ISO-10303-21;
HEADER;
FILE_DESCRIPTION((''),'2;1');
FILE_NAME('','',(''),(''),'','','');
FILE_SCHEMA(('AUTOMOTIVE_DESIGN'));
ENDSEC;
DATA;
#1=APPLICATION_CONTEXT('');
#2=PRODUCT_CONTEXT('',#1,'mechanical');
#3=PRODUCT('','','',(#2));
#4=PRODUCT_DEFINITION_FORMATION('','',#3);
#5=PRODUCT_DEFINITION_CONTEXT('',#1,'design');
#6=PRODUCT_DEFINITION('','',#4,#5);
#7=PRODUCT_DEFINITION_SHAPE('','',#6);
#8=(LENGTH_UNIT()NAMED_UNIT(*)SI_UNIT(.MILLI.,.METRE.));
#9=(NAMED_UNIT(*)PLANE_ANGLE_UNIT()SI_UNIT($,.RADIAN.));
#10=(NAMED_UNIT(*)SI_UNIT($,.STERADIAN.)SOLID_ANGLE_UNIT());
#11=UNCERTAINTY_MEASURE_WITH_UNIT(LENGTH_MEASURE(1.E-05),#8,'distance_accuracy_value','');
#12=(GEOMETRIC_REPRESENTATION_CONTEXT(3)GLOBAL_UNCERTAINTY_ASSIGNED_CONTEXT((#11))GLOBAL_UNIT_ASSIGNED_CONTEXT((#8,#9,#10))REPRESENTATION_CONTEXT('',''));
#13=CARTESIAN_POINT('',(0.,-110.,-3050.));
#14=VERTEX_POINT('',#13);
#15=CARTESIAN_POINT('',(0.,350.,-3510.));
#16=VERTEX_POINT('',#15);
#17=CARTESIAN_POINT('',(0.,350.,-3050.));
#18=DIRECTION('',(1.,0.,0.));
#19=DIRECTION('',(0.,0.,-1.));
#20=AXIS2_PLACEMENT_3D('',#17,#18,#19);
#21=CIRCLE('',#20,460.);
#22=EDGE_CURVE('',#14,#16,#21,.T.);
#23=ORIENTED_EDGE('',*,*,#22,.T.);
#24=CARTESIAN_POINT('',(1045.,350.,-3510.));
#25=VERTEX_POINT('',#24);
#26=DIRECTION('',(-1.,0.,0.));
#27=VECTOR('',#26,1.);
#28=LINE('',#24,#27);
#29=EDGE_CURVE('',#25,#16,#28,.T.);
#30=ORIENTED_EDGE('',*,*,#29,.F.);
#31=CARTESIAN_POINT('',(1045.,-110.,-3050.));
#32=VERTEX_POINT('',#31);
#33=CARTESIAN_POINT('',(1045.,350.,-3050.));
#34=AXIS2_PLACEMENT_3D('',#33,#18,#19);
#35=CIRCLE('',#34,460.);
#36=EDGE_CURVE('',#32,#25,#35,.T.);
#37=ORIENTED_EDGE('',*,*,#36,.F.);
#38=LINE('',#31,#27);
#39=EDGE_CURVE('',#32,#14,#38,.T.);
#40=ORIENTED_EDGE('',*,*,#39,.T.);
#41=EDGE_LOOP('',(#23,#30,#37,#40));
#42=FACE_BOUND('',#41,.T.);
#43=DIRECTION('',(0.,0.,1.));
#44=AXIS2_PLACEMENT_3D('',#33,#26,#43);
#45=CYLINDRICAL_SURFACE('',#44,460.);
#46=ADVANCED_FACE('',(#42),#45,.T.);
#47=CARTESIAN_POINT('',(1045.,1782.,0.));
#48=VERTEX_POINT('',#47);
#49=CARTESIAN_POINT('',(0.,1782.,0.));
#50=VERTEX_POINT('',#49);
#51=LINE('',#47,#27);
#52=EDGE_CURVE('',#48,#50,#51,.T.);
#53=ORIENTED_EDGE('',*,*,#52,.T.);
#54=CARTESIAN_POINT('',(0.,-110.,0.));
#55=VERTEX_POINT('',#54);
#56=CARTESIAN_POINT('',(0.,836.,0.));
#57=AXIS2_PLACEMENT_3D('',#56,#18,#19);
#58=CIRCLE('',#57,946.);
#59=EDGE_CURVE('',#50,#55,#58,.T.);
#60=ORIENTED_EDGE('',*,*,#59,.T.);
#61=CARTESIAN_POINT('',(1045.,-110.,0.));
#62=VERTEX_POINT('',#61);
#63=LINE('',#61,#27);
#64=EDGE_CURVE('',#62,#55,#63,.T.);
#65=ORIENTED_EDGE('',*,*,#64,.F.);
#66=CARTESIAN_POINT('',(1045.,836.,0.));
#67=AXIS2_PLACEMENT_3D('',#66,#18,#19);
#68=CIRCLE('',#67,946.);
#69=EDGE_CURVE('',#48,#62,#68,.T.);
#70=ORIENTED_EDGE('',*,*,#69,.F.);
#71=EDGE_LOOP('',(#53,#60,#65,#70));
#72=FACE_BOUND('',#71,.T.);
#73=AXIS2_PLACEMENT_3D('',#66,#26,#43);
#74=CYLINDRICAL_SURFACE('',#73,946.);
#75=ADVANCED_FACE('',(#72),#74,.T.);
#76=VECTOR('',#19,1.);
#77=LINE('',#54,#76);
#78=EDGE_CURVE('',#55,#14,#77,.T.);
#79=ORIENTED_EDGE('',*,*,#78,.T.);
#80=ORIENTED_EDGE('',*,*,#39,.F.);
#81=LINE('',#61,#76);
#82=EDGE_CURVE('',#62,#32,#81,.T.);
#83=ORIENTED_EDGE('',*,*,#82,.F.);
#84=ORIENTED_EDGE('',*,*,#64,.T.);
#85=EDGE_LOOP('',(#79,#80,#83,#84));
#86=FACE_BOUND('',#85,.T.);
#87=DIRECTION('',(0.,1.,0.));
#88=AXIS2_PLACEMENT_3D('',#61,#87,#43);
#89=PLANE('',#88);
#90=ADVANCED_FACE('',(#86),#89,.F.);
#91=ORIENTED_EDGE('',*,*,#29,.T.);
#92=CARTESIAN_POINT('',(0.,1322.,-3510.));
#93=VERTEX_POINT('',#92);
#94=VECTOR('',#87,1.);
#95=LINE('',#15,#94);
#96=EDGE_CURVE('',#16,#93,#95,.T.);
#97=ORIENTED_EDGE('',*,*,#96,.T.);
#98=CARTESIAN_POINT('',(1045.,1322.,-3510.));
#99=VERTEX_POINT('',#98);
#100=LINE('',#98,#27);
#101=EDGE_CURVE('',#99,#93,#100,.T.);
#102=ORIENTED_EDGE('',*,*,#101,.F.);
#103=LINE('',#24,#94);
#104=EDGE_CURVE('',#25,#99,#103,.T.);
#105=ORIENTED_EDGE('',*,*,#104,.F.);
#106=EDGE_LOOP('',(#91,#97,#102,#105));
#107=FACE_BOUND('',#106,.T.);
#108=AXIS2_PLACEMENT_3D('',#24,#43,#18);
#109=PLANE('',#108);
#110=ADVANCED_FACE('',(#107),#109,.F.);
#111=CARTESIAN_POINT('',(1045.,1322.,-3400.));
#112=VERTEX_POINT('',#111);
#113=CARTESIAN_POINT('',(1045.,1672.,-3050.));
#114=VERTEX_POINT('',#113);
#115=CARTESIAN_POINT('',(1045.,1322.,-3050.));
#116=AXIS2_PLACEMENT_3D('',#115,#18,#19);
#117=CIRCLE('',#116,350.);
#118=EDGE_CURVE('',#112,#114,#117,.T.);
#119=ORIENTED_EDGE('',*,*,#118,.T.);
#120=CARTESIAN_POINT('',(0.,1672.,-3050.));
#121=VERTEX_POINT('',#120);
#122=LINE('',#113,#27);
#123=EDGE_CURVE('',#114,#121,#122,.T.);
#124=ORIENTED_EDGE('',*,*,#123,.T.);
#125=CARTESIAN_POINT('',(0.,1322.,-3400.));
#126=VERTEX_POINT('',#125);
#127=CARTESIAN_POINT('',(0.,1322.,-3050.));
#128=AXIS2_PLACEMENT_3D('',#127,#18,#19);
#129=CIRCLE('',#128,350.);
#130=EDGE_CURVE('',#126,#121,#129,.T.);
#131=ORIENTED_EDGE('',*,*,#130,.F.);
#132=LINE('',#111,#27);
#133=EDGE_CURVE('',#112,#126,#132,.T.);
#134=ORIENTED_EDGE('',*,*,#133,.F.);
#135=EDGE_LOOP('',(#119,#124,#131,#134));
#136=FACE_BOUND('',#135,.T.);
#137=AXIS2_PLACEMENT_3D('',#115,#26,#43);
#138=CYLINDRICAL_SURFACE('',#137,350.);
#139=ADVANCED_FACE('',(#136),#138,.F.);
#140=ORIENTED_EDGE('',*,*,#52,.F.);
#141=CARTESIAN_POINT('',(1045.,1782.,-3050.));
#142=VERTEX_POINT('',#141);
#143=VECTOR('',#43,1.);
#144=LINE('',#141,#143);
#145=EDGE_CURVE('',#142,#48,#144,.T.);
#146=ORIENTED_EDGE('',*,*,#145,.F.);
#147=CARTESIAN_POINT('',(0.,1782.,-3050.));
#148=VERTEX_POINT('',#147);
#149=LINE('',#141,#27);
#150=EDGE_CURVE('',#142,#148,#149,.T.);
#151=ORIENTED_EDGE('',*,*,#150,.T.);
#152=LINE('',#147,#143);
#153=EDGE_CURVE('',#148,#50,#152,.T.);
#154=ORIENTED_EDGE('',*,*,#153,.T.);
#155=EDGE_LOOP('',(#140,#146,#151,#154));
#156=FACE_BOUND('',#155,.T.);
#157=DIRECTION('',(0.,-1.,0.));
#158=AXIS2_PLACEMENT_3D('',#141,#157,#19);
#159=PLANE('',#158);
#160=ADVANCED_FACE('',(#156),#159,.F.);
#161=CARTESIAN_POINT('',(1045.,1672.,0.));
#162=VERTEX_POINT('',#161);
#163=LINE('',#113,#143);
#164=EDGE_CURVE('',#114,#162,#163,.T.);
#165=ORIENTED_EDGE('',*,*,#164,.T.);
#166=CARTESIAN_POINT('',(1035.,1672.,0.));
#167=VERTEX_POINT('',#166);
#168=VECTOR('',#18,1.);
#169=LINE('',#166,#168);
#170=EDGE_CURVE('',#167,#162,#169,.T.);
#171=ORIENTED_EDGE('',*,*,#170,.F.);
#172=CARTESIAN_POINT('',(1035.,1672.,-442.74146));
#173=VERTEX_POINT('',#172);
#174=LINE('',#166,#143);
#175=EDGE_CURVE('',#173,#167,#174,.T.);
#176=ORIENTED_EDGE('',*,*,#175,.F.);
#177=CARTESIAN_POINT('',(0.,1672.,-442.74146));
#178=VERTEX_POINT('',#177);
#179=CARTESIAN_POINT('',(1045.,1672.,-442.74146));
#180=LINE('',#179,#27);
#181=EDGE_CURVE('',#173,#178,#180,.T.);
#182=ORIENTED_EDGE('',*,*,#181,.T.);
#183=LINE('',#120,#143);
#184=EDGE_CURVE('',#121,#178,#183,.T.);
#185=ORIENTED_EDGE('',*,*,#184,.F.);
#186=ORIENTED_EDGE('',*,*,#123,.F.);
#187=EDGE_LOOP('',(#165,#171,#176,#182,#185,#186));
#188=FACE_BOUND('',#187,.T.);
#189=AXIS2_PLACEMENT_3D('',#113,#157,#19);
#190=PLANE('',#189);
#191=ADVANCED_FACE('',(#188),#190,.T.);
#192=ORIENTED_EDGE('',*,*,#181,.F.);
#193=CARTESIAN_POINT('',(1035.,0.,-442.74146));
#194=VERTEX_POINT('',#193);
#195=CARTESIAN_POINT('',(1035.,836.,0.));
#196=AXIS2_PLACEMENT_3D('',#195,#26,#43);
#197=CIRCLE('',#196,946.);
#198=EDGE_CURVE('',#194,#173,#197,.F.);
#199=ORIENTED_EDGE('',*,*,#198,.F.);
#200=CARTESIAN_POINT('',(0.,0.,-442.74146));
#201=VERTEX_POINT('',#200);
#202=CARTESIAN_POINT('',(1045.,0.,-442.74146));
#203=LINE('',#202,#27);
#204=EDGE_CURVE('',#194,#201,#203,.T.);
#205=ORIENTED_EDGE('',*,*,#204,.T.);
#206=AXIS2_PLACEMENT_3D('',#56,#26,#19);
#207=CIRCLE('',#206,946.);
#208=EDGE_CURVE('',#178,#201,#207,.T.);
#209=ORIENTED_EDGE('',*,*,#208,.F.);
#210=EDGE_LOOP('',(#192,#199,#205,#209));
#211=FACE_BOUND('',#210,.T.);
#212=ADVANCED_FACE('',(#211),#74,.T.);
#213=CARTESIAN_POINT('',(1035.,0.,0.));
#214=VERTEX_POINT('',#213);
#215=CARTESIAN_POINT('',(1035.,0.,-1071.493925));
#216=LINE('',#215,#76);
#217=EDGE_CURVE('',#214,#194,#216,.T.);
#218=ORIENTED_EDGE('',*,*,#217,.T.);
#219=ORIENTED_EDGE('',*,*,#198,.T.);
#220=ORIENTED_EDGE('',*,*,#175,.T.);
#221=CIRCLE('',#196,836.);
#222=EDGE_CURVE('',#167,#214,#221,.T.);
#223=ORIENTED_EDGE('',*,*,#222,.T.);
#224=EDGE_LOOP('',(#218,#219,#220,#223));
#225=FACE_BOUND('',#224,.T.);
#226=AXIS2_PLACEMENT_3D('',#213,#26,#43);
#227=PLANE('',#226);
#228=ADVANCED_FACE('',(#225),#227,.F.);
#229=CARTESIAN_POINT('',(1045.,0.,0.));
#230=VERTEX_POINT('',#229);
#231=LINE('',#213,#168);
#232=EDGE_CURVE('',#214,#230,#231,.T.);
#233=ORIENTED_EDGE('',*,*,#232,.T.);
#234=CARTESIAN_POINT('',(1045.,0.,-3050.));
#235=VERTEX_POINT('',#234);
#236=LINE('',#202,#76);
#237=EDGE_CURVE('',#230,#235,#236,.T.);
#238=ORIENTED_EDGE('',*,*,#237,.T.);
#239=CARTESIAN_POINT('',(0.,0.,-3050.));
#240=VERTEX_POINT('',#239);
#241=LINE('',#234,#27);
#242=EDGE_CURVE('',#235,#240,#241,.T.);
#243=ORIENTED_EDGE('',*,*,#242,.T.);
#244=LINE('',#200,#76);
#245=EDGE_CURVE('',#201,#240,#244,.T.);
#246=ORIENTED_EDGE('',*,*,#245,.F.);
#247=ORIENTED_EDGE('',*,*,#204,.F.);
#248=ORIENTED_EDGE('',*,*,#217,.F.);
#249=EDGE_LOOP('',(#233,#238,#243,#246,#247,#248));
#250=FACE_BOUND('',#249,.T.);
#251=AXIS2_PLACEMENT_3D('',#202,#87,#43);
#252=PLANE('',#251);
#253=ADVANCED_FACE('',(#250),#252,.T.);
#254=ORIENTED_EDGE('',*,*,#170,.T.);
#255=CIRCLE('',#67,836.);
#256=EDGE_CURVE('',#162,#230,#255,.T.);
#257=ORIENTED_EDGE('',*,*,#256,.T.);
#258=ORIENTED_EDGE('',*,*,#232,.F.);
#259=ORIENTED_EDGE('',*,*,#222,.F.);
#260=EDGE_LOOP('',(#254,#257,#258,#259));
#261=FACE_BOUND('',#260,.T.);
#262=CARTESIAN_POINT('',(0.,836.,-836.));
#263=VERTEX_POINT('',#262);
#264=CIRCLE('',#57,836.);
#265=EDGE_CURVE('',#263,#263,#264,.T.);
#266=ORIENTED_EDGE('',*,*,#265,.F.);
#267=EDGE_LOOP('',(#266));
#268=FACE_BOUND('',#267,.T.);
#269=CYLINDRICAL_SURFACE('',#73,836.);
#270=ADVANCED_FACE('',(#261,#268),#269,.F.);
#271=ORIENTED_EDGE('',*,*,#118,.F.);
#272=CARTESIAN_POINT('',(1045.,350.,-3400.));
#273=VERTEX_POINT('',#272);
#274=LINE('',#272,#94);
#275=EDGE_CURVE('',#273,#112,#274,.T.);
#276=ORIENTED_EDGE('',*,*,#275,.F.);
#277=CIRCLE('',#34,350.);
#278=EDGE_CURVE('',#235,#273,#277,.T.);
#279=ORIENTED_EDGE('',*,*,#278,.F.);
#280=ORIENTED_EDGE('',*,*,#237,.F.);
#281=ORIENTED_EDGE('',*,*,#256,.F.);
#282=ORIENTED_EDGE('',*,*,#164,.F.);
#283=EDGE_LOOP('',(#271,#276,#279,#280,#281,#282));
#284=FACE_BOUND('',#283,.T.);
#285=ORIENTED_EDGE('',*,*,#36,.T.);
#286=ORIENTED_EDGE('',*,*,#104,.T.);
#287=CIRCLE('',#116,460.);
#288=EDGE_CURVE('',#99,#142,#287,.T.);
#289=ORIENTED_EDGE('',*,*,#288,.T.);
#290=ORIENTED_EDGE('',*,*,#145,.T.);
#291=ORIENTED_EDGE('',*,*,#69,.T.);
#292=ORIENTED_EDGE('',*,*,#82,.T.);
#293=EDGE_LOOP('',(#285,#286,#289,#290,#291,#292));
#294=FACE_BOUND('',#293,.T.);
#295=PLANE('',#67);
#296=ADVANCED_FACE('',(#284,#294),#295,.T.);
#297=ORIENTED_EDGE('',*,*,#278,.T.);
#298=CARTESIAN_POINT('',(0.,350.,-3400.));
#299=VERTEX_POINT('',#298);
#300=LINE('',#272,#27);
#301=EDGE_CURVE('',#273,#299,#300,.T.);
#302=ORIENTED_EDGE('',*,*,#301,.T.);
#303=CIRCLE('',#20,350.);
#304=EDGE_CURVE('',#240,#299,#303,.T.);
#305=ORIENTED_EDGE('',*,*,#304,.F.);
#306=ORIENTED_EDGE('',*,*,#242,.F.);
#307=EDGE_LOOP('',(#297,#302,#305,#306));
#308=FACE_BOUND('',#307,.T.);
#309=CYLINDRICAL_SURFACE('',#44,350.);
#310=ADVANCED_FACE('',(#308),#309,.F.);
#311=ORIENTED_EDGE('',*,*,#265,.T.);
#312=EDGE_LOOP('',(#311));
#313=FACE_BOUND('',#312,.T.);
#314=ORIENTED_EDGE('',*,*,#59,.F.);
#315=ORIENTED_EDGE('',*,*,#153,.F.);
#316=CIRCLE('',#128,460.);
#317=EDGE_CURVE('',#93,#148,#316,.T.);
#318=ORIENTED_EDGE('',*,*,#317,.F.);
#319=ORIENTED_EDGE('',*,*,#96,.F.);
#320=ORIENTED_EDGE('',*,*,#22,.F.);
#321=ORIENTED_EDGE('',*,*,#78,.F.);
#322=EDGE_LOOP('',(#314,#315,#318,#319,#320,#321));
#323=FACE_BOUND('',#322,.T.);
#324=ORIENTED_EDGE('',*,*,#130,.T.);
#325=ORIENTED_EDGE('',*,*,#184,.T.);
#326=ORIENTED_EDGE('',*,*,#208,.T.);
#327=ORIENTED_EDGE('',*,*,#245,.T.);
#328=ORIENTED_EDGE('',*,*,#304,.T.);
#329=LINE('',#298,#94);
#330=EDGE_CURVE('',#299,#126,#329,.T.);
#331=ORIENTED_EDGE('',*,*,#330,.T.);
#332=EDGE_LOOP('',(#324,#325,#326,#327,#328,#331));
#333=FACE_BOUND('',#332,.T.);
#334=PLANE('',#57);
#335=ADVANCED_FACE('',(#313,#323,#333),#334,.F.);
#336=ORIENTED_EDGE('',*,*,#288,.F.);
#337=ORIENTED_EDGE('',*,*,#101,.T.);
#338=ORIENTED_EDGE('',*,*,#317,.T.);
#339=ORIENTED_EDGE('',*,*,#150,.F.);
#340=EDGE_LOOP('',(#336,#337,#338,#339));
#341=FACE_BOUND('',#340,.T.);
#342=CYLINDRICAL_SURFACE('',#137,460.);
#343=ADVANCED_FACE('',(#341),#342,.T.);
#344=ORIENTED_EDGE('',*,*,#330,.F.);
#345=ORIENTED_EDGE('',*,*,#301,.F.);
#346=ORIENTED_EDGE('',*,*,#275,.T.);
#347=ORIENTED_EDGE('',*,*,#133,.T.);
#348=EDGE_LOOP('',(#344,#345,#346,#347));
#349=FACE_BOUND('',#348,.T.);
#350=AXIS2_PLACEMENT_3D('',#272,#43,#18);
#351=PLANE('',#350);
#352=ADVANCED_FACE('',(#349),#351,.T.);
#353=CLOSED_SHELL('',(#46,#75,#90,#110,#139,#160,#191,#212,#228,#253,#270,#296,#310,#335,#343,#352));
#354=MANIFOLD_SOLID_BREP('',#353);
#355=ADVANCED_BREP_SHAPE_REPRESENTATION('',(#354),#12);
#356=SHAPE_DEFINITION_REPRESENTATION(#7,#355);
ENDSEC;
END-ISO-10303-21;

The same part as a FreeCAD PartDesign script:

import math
import FreeCAD as App
import Part
import Sketcher
from FreeCAD import Vector

doc = App.newDocument("Part")
body = doc.addObject("PartDesign::Body", "Body")

sketch1 = body.newObject("Sketcher::SketchObject", "Sketch")
sketch1.AttachmentSupport = (doc.getObject("YZ_Plane"), [""])
sketch1.MapMode = "FlatFace"
sketch1.addGeometry([
    Part.LineSegment(Vector(-110, 0, 0), Vector(-110, -3050, 0)),
    Part.ArcOfCircle(Part.Circle(Vector(350, -3050, 0), Vector(0, 0, 1), 460), math.radians(180), math.radians(270)),
    Part.LineSegment(Vector(350, -3510, 0), Vector(1322, -3510, 0)),
    Part.ArcOfCircle(Part.Circle(Vector(1322, -3050, 0), Vector(0, 0, 1), 460), math.radians(-90), math.radians(0)),
    Part.LineSegment(Vector(1782, -3050, 0), Vector(1782, 0, 0)),
    Part.ArcOfCircle(Part.Circle(Vector(836, 0, 0), Vector(0, 0, 1), 946), math.radians(0), math.radians(180)),
    Part.LineSegment(Vector(0, -3050, 0), Vector(0, -443, 0)),
    Part.ArcOfCircle(Part.Circle(Vector(836, 0, 0), Vector(0, 0, 1), 946), math.radians(-152), math.radians(-28)),
    Part.LineSegment(Vector(1672, -443, 0), Vector(1672, -3050, 0)),
    Part.ArcOfCircle(Part.Circle(Vector(1322, -3050, 0), Vector(0, 0, 1), 350), math.radians(-90), math.radians(0)),
    Part.LineSegment(Vector(1322, -3400, 0), Vector(350, -3400, 0)),
    Part.ArcOfCircle(Part.Circle(Vector(350, -3050, 0), Vector(0, 0, 1), 350), math.radians(-180), math.radians(-90)),
    Part.Circle(Vector(836, 0, 0), Vector(0, 0, 1), 836),
], False)
sketch1.addConstraint([
    Sketcher.Constraint("Tangent", 0, 2, 1, 1),
    Sketcher.Constraint("Tangent", 1, 2, 2, 1),
    Sketcher.Constraint("Tangent", 2, 2, 3, 1),
    Sketcher.Constraint("Tangent", 3, 2, 4, 1),
    Sketcher.Constraint("Coincident", 4, 2, 5, 1),
    Sketcher.Constraint("Coincident", 5, 2, 0, 1),
    Sketcher.Constraint("Coincident", 6, 2, 7, 1),
    Sketcher.Constraint("Coincident", 7, 2, 8, 1),
    Sketcher.Constraint("Tangent", 8, 2, 9, 2),
    Sketcher.Constraint("Tangent", 9, 1, 10, 1),
    Sketcher.Constraint("Tangent", 10, 2, 11, 2),
    Sketcher.Constraint("Tangent", 11, 1, 6, 1),
    Sketcher.Constraint("Vertical", 0),
    Sketcher.Constraint("Horizontal", 2),
    Sketcher.Constraint("Vertical", 4),
    Sketcher.Constraint("Vertical", 6),
    Sketcher.Constraint("Vertical", 8),
    Sketcher.Constraint("Horizontal", 10),
    Sketcher.Constraint("Coincident", 7, 3, 5, 3),
    Sketcher.Constraint("Coincident", 9, 3, 3, 3),
    Sketcher.Constraint("Coincident", 11, 3, 1, 3),
    Sketcher.Constraint("Coincident", 12, 3, 5, 3),
    Sketcher.Constraint("Equal", 1, 3),
    Sketcher.Constraint("Equal", 5, 7),
    Sketcher.Constraint("PointOnObject", 5, 3, -1),
    Sketcher.Constraint("PointOnObject", 4, 2, -1),
    Sketcher.Constraint("PointOnObject", 6, 2, -2),
    Sketcher.Constraint("Equal", 0, 4),
    Sketcher.Constraint("Diameter", 12, 1672.0),
    Sketcher.Constraint("Radius", 1, 460.0),
    Sketcher.Constraint("Radius", 5, 946.0),
    Sketcher.Constraint("Radius", 9, 350.0),
    Sketcher.Constraint("DistanceY", 0, 2, 0, 1, 3050.0),
])
pad1 = body.newObject("PartDesign::Pad", "Pad")
pad1.Profile = sketch1
pad1.Length = 1045

sketch2 = body.newObject("Sketcher::SketchObject", "Sketch001")
sketch2.AttachmentSupport = (doc.getObject("YZ_Plane"), [""])
sketch2.MapMode = "FlatFace"
sketch2.AttachmentOffset = App.Placement(Vector(0, 0, 1045), App.Rotation())
sketch2.addGeometry([
    Part.LineSegment(Vector(1672, 0, 0), Vector(0, 0, 0)),
    Part.LineSegment(Vector(0, 0, 0), Vector(0, -1071, 0)),
    Part.LineSegment(Vector(0, -1071, 0), Vector(1672, -1071, 0)),
    Part.LineSegment(Vector(1672, -1071, 0), Vector(1672, 0, 0)),
], False)
sketch2.addConstraint([
    Sketcher.Constraint("Coincident", 0, 2, 1, 1),
    Sketcher.Constraint("Coincident", 1, 2, 2, 1),
    Sketcher.Constraint("Coincident", 2, 2, 3, 1),
    Sketcher.Constraint("Coincident", 3, 2, 0, 1),
    Sketcher.Constraint("Horizontal", 0),
    Sketcher.Constraint("Vertical", 1),
    Sketcher.Constraint("Horizontal", 2),
    Sketcher.Constraint("Vertical", 3),
    Sketcher.Constraint("Coincident", 0, 2, -1, 1),
    Sketcher.Constraint("DistanceX", 0, 2, 0, 1, 1672.0),
    Sketcher.Constraint("DistanceY", 1, 2, 1, 1, 1071.493925),
])
pocket1 = body.newObject("PartDesign::Pocket", "Pocket")
pocket1.Profile = sketch2
pocket1.Length = 10

doc.recompute()
